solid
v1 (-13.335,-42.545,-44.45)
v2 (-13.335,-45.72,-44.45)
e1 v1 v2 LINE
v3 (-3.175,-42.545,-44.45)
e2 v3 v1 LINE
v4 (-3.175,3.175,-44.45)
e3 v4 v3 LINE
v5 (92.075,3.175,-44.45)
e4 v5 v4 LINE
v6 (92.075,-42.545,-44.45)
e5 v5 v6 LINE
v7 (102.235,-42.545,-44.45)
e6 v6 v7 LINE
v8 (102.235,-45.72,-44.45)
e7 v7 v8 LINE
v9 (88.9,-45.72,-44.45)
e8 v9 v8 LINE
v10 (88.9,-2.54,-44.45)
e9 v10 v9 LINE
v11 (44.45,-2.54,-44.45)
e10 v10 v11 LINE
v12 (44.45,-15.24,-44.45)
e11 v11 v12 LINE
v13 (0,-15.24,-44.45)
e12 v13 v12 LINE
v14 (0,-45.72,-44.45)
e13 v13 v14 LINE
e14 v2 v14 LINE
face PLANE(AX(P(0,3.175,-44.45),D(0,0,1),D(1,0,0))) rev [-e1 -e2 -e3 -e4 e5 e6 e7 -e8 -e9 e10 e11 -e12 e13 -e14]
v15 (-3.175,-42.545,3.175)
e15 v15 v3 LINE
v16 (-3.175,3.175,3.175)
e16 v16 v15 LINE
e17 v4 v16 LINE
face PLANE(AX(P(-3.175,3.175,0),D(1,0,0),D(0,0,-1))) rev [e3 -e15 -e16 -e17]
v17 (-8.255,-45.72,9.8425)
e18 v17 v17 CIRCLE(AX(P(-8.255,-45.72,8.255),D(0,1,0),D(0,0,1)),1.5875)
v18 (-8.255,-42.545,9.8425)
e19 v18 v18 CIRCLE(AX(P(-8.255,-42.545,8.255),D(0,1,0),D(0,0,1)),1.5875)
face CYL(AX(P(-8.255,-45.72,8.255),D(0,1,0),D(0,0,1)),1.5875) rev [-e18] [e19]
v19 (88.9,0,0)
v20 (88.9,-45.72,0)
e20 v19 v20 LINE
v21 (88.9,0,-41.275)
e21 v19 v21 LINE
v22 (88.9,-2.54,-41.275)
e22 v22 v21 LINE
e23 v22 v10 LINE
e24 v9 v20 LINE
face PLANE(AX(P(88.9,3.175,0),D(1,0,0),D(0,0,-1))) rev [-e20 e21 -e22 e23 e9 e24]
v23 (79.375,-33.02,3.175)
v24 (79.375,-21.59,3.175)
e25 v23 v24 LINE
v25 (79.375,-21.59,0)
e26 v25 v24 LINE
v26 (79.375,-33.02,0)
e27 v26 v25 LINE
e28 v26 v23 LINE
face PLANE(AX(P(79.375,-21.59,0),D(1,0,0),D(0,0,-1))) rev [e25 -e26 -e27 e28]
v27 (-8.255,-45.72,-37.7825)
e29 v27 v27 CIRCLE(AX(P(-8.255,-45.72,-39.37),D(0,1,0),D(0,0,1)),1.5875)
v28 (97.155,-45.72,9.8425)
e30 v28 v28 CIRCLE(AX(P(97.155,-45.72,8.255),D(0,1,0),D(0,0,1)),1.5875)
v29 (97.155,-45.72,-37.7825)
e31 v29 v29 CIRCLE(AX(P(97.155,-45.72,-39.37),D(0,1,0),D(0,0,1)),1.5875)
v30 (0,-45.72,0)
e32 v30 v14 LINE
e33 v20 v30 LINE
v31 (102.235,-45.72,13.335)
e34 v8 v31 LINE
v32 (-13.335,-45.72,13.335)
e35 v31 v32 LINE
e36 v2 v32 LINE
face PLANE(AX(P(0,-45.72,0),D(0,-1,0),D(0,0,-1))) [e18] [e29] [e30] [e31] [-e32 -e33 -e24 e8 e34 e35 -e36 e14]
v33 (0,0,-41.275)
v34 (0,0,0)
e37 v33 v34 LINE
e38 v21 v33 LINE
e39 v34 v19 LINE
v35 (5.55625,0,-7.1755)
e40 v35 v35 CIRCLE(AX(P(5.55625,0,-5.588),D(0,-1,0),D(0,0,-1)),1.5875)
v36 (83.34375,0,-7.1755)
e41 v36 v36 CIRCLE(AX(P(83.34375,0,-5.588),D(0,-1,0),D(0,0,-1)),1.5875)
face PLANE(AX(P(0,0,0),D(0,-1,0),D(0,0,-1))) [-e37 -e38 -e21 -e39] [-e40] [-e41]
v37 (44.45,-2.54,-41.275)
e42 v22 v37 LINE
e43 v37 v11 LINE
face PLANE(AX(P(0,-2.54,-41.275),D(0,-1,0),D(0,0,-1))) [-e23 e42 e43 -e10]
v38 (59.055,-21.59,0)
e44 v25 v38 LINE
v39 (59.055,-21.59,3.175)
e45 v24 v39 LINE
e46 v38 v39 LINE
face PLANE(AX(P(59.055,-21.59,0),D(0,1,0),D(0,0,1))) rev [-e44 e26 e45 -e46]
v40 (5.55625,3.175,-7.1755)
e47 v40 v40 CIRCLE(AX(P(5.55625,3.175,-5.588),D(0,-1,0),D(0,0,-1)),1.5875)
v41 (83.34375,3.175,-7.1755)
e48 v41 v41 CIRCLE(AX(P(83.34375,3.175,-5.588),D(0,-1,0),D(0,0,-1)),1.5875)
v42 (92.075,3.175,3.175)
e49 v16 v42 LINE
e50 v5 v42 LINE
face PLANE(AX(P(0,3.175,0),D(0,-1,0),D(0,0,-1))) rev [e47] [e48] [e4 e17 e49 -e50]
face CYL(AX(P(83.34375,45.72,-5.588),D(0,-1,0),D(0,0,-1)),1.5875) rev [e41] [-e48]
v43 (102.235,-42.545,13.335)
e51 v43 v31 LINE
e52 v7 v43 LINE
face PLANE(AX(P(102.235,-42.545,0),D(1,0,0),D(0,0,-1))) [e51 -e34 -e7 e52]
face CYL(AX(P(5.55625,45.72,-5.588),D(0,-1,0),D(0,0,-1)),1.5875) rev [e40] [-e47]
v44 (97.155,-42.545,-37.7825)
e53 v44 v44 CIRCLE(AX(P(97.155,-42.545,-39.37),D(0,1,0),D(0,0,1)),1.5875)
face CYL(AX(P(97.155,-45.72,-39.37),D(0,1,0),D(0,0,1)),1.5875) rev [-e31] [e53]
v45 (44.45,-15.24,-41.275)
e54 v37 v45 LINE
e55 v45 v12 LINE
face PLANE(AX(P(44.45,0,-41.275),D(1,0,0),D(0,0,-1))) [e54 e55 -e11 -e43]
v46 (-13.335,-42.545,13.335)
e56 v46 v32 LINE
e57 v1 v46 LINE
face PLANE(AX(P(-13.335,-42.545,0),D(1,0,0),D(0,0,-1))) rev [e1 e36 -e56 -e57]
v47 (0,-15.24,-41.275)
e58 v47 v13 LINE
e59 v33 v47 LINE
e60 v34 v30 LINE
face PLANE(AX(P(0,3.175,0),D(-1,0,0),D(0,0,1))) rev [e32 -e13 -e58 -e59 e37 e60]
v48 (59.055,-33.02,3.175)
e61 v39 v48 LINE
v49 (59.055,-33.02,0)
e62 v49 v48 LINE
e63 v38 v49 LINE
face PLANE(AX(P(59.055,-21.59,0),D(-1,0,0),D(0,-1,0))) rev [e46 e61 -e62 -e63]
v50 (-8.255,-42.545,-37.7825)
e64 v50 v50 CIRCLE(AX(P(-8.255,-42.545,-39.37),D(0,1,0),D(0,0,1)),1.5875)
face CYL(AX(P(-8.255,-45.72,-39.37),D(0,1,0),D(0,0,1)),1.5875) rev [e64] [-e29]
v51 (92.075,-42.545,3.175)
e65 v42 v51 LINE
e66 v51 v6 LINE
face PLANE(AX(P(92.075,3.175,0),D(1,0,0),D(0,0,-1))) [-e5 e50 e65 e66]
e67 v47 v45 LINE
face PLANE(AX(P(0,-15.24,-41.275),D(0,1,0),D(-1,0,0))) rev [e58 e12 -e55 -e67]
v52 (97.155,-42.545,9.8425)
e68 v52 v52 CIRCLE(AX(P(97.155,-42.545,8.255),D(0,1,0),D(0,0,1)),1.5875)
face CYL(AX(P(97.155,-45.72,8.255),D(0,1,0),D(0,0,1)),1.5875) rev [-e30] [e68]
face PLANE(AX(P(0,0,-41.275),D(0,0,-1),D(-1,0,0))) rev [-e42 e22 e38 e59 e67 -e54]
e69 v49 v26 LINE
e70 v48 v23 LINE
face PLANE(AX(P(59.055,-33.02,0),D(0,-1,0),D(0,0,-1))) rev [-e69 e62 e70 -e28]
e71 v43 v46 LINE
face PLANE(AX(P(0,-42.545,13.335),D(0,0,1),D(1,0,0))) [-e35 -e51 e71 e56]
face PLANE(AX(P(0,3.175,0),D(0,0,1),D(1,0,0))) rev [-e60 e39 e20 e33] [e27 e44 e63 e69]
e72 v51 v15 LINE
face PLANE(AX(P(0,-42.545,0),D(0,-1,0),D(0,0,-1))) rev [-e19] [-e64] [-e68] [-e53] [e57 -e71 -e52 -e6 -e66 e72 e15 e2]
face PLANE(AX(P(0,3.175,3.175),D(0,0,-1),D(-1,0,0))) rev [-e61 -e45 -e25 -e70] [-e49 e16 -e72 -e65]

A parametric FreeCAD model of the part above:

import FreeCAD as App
import Part
import Sketcher
Q = App.Units.Quantity


def add_polygon(sketch, points):
    """Adds a closed chain of lines whose ends are joined by coincident constraints."""
    first, n = sketch.GeometryCount, len(points)
    for a, b in zip(points, points[1:] + points[:1]):
        sketch.addGeometry(Part.LineSegment(App.Vector(*a, 0), App.Vector(*b, 0)), False)
    for i in range(n):
        sketch.addConstraint(Sketcher.Constraint("Coincident", first + i, 2, first + (i + 1) % n, 1))

doc = App.newDocument("Part")
params = doc.addObject("Spreadsheet::Sheet", "Params")
for row, (alias, value) in enumerate([
    ("sketch1_width", "3.5 in"),
    ("sketch1_height", "1.75 in"),
    ("pad1_length", "0.125 in"),
    ("sketch2_width", "3.5 in"),
    ("sketch2_width2", "3.75 in"),
    ("sketch2_height", "1.75 in"),
    ("sketch2_height2", "1.875 in"),
    ("pad2_length", "1.8 in"),
    ("pad2_length2", "0.125 in"),
    ("sketch3_diameter", "0.125 in"),
    ("pocket1_length", "1.8 in"),
    ("sketch4_width", "0.4 in"),
    ("sketch4_width2", "3.75 in"),
    ("sketch4_height", "1.875 in"),
    ("pad3_length", "0.125 in"),
    ("sketch5_diameter", "0.125 in"),
    ("pocket2_length", "0.125 in"),
    ("sketch6_width", "0.8 in"),
    ("sketch6_height", "0.45 in"),
    ("pocket3_length", "0.125 in"),
    ("sketch7_width", "3.5 in"),
    ("sketch7_height", "0.5 in"),
    ("sketch7_height2", "0.6 in"),
    ("pad4_length", "0.125 in"),
], start=1):
    params.set(f"A{row}", alias)
    params.set(f"B{row}", "=" + value)
    params.setAlias(f"B{row}", alias)

body = doc.addObject("PartDesign::Body", "Body")

# Sketch on XZ plane
sketch1 = body.newObject("Sketcher::SketchObject", "Sketch")
sketch1.AttachmentSupport = (doc.getObject("XZ_Plane"), [""])
sketch1.MapMode = "FlatFace"
add_polygon(sketch1, [(0, -44), (0, 0), (89, 0), (89, -44)])  # lines 0-3
sketch1.addConstraint(Sketcher.Constraint("Vertical", 0))
sketch1.addConstraint(Sketcher.Constraint("Horizontal", 1))
sketch1.addConstraint(Sketcher.Constraint("Vertical", 2))
sketch1.addConstraint(Sketcher.Constraint("Horizontal", 3))
sketch1.addConstraint(Sketcher.Constraint("Coincident", 0, 2, -1, 1))
sketch1.addConstraint(Sketcher.Constraint("DistanceX", 1, 1, 1, 2, Q("3.5 in")))
sketch1.addConstraint(Sketcher.Constraint("DistanceY", 0, 1, 0, 2, Q("1.75 in")))
sketch1.setExpression("Constraints[9]", "Params.sketch1_width")
sketch1.setExpression("Constraints[10]", "Params.sketch1_height")
pad1 = body.newObject("PartDesign::Pad", "Pad")
pad1.Profile = sketch1
pad1.setExpression("Length", "Params.pad1_length")
pad1.Reversed = True

# Sketch on XZ plane
sketch2 = body.newObject("Sketcher::SketchObject", "Sketch001")
sketch2.AttachmentSupport = (doc.getObject("XZ_Plane"), [""])
sketch2.MapMode = "FlatFace"
add_polygon(sketch2, [(-3.2, 3.2), (-3.2, -44.5), (0, -44.5), (0, 0), (88.9, 0), (88.9, -44.5), (92.1, -44.5), (92.1, 3.2)])  # lines 0-7
sketch2.addConstraint(Sketcher.Constraint("Vertical", 0))
sketch2.addConstraint(Sketcher.Constraint("Horizontal", 1))
sketch2.addConstraint(Sketcher.Constraint("Vertical", 2))
sketch2.addConstraint(Sketcher.Constraint("Horizontal", 3))
sketch2.addConstraint(Sketcher.Constraint("Vertical", 4))
sketch2.addConstraint(Sketcher.Constraint("Horizontal", 5))
sketch2.addConstraint(Sketcher.Constraint("Vertical", 6))
sketch2.addConstraint(Sketcher.Constraint("Horizontal", 7))
sketch2.addConstraint(Sketcher.Constraint("Coincident", 2, 2, -1, 1))
sketch2.addConstraint(Sketcher.Constraint("Horizontal", 1, 2, 4, 2))
sketch2.addConstraint(Sketcher.Constraint("Equal", 1, 5))
sketch2.addConstraint(Sketcher.Constraint("DistanceX", 3, 1, 3, 2, Q("3.5 in")))
sketch2.addConstraint(Sketcher.Constraint("DistanceX", 7, 2, 7, 1, Q("3.75 in")))
sketch2.addConstraint(Sketcher.Constraint("DistanceY", 2, 1, 2, 2, Q("1.75 in")))
sketch2.addConstraint(Sketcher.Constraint("DistanceY", 0, 2, 0, 1, Q("1.875 in")))
sketch2.setExpression("Constraints[19]", "Params.sketch2_width")
sketch2.setExpression("Constraints[20]", "Params.sketch2_width2")
sketch2.setExpression("Constraints[21]", "Params.sketch2_height")
sketch2.setExpression("Constraints[22]", "Params.sketch2_height2")
pad2 = body.newObject("PartDesign::Pad", "Pad001")
pad2.Profile = sketch2
pad2.Type = "TwoLengths"
pad2.setExpression("Length", "Params.pad2_length")
pad2.setExpression("Length2", "Params.pad2_length2")

# Sketch on XZ plane
sketch3 = body.newObject("Sketcher::SketchObject", "Sketch002")
sketch3.AttachmentSupport = (doc.getObject("XZ_Plane"), [""])
sketch3.MapMode = "FlatFace"
sketch3.addGeometry(Part.Circle(App.Vector(83.3, -5.6, 0), App.Vector(0, 0, 1), 1.6), False)
sketch3.addGeometry(Part.Circle(App.Vector(5.6, -5.6, 0), App.Vector(0, 0, 1), 1.6), False)
sketch3.addConstraint(Sketcher.Constraint("Equal", 0, 1))
sketch3.addConstraint(Sketcher.Constraint("Horizontal", 0, 3, 1, 3))
sketch3.addConstraint(Sketcher.Constraint("Diameter", 0, Q("0.125 in")))
sketch3.addConstraint(Sketcher.Constraint("DistanceY", 0, 3, -1, 1, Q("0.22 in")))
sketch3.addConstraint(Sketcher.Constraint("DistanceX", -1, 1, 0, 3, Q("3.28125 in")))
sketch3.addConstraint(Sketcher.Constraint("DistanceX", -1, 1, 1, 3, Q("0.21875 in")))
sketch3.setExpression("Constraints[2]", "Params.sketch3_diameter")
pocket1 = body.newObject("PartDesign::Pocket", "Pocket")
pocket1.Profile = sketch3
pocket1.setExpression("Length", "Params.pocket1_length")

# Sketch on XZ plane
sketch4 = body.newObject("Sketcher::SketchObject", "Sketch003")
sketch4.AttachmentSupport = (doc.getObject("XZ_Plane"), [""])
sketch4.MapMode = "FlatFace"
sketch4.AttachmentOffset = App.Placement(App.Vector(0, 0, 1.8 * 25.4), App.Rotation())
add_polygon(sketch4, [(-13, -44), (-3, -44), (-3, 3), (92, 3), (92, -44), (102, -44), (102, 13), (-13, 13)])  # lines 0-7
sketch4.addConstraint(Sketcher.Constraint("Horizontal", 0))
sketch4.addConstraint(Sketcher.Constraint("Vertical", 1))
sketch4.addConstraint(Sketcher.Constraint("Horizontal", 2))
sketch4.addConstraint(Sketcher.Constraint("Vertical", 3))
sketch4.addConstraint(Sketcher.Constraint("Horizontal", 4))
sketch4.addConstraint(Sketcher.Constraint("Vertical", 5))
sketch4.addConstraint(Sketcher.Constraint("Horizontal", 6))
sketch4.addConstraint(Sketcher.Constraint("Vertical", 7))
sketch4.addConstraint(Sketcher.Constraint("Horizontal", 0, 2, 3, 2))
sketch4.addConstraint(Sketcher.Constraint("Equal", 0, 4))
sketch4.addConstraint(Sketcher.Constraint("DistanceX", 0, 1, 0, 2, Q("0.4 in")))
sketch4.addConstraint(Sketcher.Constraint("DistanceX", 2, 1, 2, 2, Q("3.75 in")))
sketch4.addConstraint(Sketcher.Constraint("DistanceY", 2, 2, 5, 2, Q("0.4 in")))
sketch4.addConstraint(Sketcher.Constraint("DistanceY", 1, 1, 1, 2, Q("1.875 in")))
sketch4.addConstraint(Sketcher.Constraint("DistanceY", 0, 2, -1, 1, Q("1.75 in")))
sketch4.addConstraint(Sketcher.Constraint("DistanceX", 0, 2, -1, 1, Q("0.125 in")))
sketch4.setExpression("Constraints[18]", "Params.sketch4_width")
sketch4.setExpression("Constraints[19]", "Params.sketch4_width2")
sketch4.setExpression("Constraints[21]", "Params.sketch4_height")
pad3 = body.newObject("PartDesign::Pad", "Pad002")
pad3.Profile = sketch4
pad3.setExpression("Length", "Params.pad3_length")
pad3.Reversed = True

# Sketch on XZ plane
sketch5 = body.newObject("Sketcher::SketchObject", "Sketch004")
sketch5.AttachmentSupport = (doc.getObject("XZ_Plane"), [""])
sketch5.MapMode = "FlatFace"
sketch5.AttachmentOffset = App.Placement(App.Vector(0, 0, 1.675 * 25.4), App.Rotation())
sketch5.addGeometry(Part.Circle(App.Vector(-8.3, -39.4, 0), App.Vector(0, 0, 1), 1.6), False)
sketch5.addGeometry(Part.Circle(App.Vector(-8.3, 8.3, 0), App.Vector(0, 0, 1), 1.6), False)
sketch5.addGeometry(Part.Circle(App.Vector(97.2, 8.3, 0), App.Vector(0, 0, 1), 1.6), False)
sketch5.addGeometry(Part.Circle(App.Vector(97.2, -39.4, 0), App.Vector(0, 0, 1), 1.6), False)
sketch5.addConstraint(Sketcher.Constraint("Equal", 0, 1))
sketch5.addConstraint(Sketcher.Constraint("Equal", 1, 2))
sketch5.addConstraint(Sketcher.Constraint("Equal", 2, 3))
sketch5.addConstraint(Sketcher.Constraint("Horizontal", 1, 3, 2, 3))
sketch5.addConstraint(Sketcher.Constraint("Horizontal", 0, 3, 3, 3))
sketch5.addConstraint(Sketcher.Constraint("Vertical", 0, 3, 1, 3))
sketch5.addConstraint(Sketcher.Constraint("Vertical", 2, 3, 3, 3))
sketch5.addConstraint(Sketcher.Constraint("Diameter", 0, Q("0.125 in")))
sketch5.addConstraint(Sketcher.Constraint("DistanceY", 0, 3, -1, 1, Q("1.55 in")))
sketch5.addConstraint(Sketcher.Constraint("DistanceX", 1, 3, 2, 3, Q("4.15 in")))
sketch5.addConstraint(Sketcher.Constraint("DistanceX", 0, 3, -1, 1, Q("0.325 in")))
sketch5.addConstraint(Sketcher.Constraint("DistanceY", -1, 1, 1, 3, Q("0.325 in")))
sketch5.setExpression("Constraints[7]", "Params.sketch5_diameter")
pocket2 = body.newObject("PartDesign::Pocket", "Pocket001")
pocket2.Profile = sketch5
pocket2.setExpression("Length", "Params.pocket2_length")
pocket2.Reversed = True

# Sketch on XY plane
sketch6 = body.newObject("Sketcher::SketchObject", "Sketch005")
sketch6.AttachmentSupport = (doc.getObject("XY_Plane"), [""])
sketch6.MapMode = "FlatFace"
sketch6.AttachmentOffset = App.Placement(App.Vector(0, 0, 0.125 * 25.4), App.Rotation())
add_polygon(sketch6, [(59, -22), (59, -33), (79, -33), (79, -22)])  # lines 0-3
sketch6.addConstraint(Sketcher.Constraint("Vertical", 0))
sketch6.addConstraint(Sketcher.Constraint("Horizontal", 1))
sketch6.addConstraint(Sketcher.Constraint("Vertical", 2))
sketch6.addConstraint(Sketcher.Constraint("Horizontal", 3))
sketch6.addConstraint(Sketcher.Constraint("DistanceX", 1, 1, 1, 2, Q("0.8 in")))
sketch6.addConstraint(Sketcher.Constraint("DistanceY", 0, 2, 0, 1, Q("0.45 in")))
sketch6.addConstraint(Sketcher.Constraint("DistanceY", 0, 2, -1, 1, Q("1.3 in")))
sketch6.addConstraint(Sketcher.Constraint("DistanceX", -1, 1, 0, 2, Q("2.325 in")))
sketch6.setExpression("Constraints[8]", "Params.sketch6_width")
sketch6.setExpression("Constraints[9]", "Params.sketch6_height")
pocket3 = body.newObject("PartDesign::Pocket", "Pocket002")
pocket3.Profile = sketch6
pocket3.setExpression("Length", "Params.pocket3_length")

# Sketch on XY plane
sketch7 = body.newObject("Sketcher::SketchObject", "Sketch006")
sketch7.AttachmentSupport = (doc.getObject("XY_Plane"), [""])
sketch7.MapMode = "FlatFace"
sketch7.AttachmentOffset = App.Placement(App.Vector(0, 0, -1.75 * 25.4), App.Rotation())
add_polygon(sketch7, [(44.5, -2.5), (44.5, -15.2), (0, -15.2), (0, 0), (88.9, 0), (88.9, -2.5)])  # lines 0-5
sketch7.addConstraint(Sketcher.Constraint("Vertical", 0))
sketch7.addConstraint(Sketcher.Constraint("Horizontal", 1))
sketch7.addConstraint(Sketcher.Constraint("Vertical", 2))
sketch7.addConstraint(Sketcher.Constraint("Horizontal", 3))
sketch7.addConstraint(Sketcher.Constraint("Vertical", 4))
sketch7.addConstraint(Sketcher.Constraint("Horizontal", 5))
sketch7.addConstraint(Sketcher.Constraint("Coincident", 2, 2, -1, 1))
sketch7.addConstraint(Sketcher.Constraint("Equal", 1, 5))
sketch7.addConstraint(Sketcher.Constraint("DistanceX", 3, 1, 3, 2, Q("3.5 in")))
sketch7.addConstraint(Sketcher.Constraint("DistanceY", 0, 2, 0, 1, Q("0.5 in")))
sketch7.addConstraint(Sketcher.Constraint("DistanceY", 2, 1, 2, 2, Q("0.6 in")))
sketch7.setExpression("Constraints[14]", "Params.sketch7_width")
sketch7.setExpression("Constraints[15]", "Params.sketch7_height")
sketch7.setExpression("Constraints[16]", "Params.sketch7_height2")
pad4 = body.newObject("PartDesign::Pad", "Pad003")
pad4.Profile = sketch7
pad4.setExpression("Length", "Params.pad4_length")

doc.recompute()
